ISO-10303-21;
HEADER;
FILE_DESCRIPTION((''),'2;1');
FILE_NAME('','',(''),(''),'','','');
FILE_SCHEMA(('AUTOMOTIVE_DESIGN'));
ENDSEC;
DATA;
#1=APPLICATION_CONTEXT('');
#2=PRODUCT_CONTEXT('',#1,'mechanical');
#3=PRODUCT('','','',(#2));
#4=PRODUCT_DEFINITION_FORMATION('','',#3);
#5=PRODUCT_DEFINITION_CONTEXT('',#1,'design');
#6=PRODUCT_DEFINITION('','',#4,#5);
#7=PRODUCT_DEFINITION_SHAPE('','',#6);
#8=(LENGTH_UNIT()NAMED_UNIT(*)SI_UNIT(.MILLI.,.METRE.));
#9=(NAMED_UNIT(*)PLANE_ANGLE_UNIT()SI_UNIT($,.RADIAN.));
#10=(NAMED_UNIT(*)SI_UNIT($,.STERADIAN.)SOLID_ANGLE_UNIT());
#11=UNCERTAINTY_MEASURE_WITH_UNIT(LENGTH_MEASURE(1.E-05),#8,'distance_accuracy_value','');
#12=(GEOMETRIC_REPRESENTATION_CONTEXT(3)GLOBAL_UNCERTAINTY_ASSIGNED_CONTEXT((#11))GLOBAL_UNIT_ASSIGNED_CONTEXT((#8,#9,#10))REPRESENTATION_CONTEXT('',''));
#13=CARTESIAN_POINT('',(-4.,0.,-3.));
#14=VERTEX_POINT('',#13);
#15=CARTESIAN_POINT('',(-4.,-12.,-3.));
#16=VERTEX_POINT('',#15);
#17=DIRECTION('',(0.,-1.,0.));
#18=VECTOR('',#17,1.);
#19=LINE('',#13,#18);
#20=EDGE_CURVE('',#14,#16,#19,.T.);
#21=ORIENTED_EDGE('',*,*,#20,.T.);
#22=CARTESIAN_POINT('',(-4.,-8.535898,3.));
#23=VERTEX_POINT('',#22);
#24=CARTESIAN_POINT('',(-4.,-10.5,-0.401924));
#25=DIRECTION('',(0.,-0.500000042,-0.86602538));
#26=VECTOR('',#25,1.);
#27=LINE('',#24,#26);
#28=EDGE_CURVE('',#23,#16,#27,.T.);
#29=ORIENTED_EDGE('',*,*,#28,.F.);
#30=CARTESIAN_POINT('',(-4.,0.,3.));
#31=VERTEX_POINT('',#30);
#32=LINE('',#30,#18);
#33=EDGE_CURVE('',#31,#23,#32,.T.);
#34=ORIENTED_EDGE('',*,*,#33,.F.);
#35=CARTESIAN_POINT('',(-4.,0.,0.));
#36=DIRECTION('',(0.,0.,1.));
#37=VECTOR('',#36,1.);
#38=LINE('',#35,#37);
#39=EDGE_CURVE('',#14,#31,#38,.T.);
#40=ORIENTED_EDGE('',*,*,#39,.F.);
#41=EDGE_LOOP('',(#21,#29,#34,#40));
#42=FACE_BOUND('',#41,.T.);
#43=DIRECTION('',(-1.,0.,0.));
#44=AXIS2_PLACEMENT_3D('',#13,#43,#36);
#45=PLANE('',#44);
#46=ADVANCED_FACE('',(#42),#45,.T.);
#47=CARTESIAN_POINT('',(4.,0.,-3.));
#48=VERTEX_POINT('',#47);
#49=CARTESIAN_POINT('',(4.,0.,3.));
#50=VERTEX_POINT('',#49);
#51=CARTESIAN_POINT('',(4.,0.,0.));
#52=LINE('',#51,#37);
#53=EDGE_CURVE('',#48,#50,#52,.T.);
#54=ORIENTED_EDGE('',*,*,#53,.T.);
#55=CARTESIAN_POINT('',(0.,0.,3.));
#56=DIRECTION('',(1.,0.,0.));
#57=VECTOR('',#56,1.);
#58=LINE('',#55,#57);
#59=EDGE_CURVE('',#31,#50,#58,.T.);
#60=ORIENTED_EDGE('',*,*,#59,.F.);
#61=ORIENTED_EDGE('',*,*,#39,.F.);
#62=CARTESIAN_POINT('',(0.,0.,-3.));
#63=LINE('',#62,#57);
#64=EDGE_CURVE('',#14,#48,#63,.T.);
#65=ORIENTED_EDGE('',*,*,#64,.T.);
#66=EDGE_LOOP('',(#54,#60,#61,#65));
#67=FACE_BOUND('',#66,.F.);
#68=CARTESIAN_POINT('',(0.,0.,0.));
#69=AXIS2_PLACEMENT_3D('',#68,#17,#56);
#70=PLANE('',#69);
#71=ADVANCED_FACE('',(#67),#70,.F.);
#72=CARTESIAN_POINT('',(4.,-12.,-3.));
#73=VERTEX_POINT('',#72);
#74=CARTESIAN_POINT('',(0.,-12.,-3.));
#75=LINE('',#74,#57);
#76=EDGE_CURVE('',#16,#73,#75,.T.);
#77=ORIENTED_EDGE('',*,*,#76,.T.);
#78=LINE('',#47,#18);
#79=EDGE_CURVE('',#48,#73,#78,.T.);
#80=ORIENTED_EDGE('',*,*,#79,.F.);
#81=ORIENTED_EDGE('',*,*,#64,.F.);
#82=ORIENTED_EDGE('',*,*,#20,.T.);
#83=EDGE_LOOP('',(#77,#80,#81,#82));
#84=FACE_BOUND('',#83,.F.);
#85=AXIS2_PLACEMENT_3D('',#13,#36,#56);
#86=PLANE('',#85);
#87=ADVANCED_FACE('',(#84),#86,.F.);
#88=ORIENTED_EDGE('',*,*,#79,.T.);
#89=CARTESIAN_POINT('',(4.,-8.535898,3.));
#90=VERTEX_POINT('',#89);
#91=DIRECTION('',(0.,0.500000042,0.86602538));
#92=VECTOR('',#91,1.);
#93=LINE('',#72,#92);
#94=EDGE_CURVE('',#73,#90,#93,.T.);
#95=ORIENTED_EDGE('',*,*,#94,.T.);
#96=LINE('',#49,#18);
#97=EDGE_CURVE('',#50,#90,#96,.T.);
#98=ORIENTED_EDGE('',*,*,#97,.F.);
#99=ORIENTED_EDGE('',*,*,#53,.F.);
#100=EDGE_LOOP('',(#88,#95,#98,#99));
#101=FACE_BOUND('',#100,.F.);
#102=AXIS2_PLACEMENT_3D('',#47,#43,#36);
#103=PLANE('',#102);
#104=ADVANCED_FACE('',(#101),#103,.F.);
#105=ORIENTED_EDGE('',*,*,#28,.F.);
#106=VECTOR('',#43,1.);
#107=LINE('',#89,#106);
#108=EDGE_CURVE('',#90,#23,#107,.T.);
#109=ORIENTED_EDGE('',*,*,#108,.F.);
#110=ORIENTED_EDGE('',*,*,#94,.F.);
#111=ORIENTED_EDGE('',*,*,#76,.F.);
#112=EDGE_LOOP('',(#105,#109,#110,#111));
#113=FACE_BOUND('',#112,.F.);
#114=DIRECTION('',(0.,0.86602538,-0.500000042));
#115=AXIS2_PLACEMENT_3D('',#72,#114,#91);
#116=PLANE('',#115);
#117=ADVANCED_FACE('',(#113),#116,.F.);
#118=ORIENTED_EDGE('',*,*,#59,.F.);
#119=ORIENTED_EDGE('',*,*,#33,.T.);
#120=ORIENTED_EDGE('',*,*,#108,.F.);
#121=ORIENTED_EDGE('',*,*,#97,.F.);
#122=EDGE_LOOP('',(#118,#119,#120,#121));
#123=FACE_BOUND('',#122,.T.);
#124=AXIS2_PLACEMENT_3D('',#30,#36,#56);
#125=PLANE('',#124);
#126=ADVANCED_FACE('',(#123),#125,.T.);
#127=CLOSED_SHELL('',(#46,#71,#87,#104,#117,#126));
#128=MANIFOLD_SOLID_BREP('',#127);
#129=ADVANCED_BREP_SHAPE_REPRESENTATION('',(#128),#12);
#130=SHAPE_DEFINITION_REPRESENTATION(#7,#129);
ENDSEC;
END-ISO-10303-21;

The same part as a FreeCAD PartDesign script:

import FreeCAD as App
import Part
import Sketcher
from FreeCAD import Vector
Q = App.Units.Quantity

doc = App.newDocument("Part")
params = doc.addObject("Spreadsheet::Sheet", "Params")
for row, (alias, value) in enumerate([
    ("sketch1_width", "8 mm"),
    ("sketch1_height", "6 mm"),
    ("pad1_length", "12 mm"),
    ("sketch2_height", "6 mm"),
], start=1):
    params.set(f"A{row}", alias)
    params.set(f"B{row}", "=" + value)
    params.setAlias(f"B{row}", alias)

body = doc.addObject("PartDesign::Body", "Body")

# Sketch on XZ plane
sketch1 = body.newObject("Sketcher::SketchObject", "Sketch")
sketch1.AttachmentSupport = (doc.getObject("XZ_Plane"), [""])
sketch1.MapMode = "FlatFace"
sketch1.addGeometry([
    Part.LineSegment(Vector(-4, 3, 0), Vector(-4, -3, 0)),
    Part.LineSegment(Vector(-4, -3, 0), Vector(4, -3, 0)),
    Part.LineSegment(Vector(4, -3, 0), Vector(4, 3, 0)),
    Part.LineSegment(Vector(4, 3, 0), Vector(-4, 3, 0)),
], False)
sketch1.addConstraint([
    Sketcher.Constraint("Coincident", 0, 2, 1, 1),
    Sketcher.Constraint("Coincident", 1, 2, 2, 1),
    Sketcher.Constraint("Coincident", 2, 2, 3, 1),
    Sketcher.Constraint("Coincident", 3, 2, 0, 1),
    Sketcher.Constraint("Vertical", 0),
    Sketcher.Constraint("Horizontal", 1),
    Sketcher.Constraint("Vertical", 2),
    Sketcher.Constraint("Horizontal", 3),
    Sketcher.Constraint("Symmetric", 0, 2, 2, 2, -1, 1),
    Sketcher.Constraint("DistanceX", 1, 1, 1, 2, 8.0),
    Sketcher.Constraint("DistanceY", 0, 2, 0, 1, 6.0),
])
sketch1.setExpression("Constraints[9]", "Params.sketch1_width")
sketch1.setExpression("Constraints[10]", "Params.sketch1_height")
pad1 = body.newObject("PartDesign::Pad", "Pad")
pad1.Profile = sketch1
pad1.setExpression("Length", "Params.pad1_length")

# Sketch on YZ plane
sketch2 = body.newObject("Sketcher::SketchObject", "Sketch001")
sketch2.AttachmentSupport = (doc.getObject("YZ_Plane"), [""])
sketch2.MapMode = "FlatFace"
sketch2.AttachmentOffset = App.Placement(Vector(0, 0, 4), App.Rotation())
sketch2.addGeometry([
    Part.LineSegment(Vector(-12, 3, 0), Vector(-12, -3, 0)),
    Part.LineSegment(Vector(-12, -3, 0), Vector(-8.5, 3, 0)),
    Part.LineSegment(Vector(-8.5, 3, 0), Vector(-12, 3, 0)),
], False)
sketch2.addConstraint([
    Sketcher.Constraint("Coincident", 0, 2, 1, 1),
    Sketcher.Constraint("Coincident", 1, 2, 2, 1),
    Sketcher.Constraint("Coincident", 2, 2, 0, 1),
    Sketcher.Constraint("Vertical", 0),
    Sketcher.Constraint("Horizontal", 2),
    Sketcher.Constraint("DistanceY", 0, 2, 0, 1, 6.0),
    Sketcher.Constraint("Angle", 1, Q("59.999997 deg")),
    Sketcher.Constraint("DistanceX", 0, 2, -1, 1, 12.0),
    Sketcher.Constraint("DistanceY", 0, 2, -1, 1, 3.0),
])
sketch2.setExpression("Constraints[5]", "Params.sketch2_height")
pocket1 = body.newObject("PartDesign::Pocket", "Pocket")
pocket1.Profile = sketch2
pocket1.Type = "ThroughAll"

doc.recompute()
